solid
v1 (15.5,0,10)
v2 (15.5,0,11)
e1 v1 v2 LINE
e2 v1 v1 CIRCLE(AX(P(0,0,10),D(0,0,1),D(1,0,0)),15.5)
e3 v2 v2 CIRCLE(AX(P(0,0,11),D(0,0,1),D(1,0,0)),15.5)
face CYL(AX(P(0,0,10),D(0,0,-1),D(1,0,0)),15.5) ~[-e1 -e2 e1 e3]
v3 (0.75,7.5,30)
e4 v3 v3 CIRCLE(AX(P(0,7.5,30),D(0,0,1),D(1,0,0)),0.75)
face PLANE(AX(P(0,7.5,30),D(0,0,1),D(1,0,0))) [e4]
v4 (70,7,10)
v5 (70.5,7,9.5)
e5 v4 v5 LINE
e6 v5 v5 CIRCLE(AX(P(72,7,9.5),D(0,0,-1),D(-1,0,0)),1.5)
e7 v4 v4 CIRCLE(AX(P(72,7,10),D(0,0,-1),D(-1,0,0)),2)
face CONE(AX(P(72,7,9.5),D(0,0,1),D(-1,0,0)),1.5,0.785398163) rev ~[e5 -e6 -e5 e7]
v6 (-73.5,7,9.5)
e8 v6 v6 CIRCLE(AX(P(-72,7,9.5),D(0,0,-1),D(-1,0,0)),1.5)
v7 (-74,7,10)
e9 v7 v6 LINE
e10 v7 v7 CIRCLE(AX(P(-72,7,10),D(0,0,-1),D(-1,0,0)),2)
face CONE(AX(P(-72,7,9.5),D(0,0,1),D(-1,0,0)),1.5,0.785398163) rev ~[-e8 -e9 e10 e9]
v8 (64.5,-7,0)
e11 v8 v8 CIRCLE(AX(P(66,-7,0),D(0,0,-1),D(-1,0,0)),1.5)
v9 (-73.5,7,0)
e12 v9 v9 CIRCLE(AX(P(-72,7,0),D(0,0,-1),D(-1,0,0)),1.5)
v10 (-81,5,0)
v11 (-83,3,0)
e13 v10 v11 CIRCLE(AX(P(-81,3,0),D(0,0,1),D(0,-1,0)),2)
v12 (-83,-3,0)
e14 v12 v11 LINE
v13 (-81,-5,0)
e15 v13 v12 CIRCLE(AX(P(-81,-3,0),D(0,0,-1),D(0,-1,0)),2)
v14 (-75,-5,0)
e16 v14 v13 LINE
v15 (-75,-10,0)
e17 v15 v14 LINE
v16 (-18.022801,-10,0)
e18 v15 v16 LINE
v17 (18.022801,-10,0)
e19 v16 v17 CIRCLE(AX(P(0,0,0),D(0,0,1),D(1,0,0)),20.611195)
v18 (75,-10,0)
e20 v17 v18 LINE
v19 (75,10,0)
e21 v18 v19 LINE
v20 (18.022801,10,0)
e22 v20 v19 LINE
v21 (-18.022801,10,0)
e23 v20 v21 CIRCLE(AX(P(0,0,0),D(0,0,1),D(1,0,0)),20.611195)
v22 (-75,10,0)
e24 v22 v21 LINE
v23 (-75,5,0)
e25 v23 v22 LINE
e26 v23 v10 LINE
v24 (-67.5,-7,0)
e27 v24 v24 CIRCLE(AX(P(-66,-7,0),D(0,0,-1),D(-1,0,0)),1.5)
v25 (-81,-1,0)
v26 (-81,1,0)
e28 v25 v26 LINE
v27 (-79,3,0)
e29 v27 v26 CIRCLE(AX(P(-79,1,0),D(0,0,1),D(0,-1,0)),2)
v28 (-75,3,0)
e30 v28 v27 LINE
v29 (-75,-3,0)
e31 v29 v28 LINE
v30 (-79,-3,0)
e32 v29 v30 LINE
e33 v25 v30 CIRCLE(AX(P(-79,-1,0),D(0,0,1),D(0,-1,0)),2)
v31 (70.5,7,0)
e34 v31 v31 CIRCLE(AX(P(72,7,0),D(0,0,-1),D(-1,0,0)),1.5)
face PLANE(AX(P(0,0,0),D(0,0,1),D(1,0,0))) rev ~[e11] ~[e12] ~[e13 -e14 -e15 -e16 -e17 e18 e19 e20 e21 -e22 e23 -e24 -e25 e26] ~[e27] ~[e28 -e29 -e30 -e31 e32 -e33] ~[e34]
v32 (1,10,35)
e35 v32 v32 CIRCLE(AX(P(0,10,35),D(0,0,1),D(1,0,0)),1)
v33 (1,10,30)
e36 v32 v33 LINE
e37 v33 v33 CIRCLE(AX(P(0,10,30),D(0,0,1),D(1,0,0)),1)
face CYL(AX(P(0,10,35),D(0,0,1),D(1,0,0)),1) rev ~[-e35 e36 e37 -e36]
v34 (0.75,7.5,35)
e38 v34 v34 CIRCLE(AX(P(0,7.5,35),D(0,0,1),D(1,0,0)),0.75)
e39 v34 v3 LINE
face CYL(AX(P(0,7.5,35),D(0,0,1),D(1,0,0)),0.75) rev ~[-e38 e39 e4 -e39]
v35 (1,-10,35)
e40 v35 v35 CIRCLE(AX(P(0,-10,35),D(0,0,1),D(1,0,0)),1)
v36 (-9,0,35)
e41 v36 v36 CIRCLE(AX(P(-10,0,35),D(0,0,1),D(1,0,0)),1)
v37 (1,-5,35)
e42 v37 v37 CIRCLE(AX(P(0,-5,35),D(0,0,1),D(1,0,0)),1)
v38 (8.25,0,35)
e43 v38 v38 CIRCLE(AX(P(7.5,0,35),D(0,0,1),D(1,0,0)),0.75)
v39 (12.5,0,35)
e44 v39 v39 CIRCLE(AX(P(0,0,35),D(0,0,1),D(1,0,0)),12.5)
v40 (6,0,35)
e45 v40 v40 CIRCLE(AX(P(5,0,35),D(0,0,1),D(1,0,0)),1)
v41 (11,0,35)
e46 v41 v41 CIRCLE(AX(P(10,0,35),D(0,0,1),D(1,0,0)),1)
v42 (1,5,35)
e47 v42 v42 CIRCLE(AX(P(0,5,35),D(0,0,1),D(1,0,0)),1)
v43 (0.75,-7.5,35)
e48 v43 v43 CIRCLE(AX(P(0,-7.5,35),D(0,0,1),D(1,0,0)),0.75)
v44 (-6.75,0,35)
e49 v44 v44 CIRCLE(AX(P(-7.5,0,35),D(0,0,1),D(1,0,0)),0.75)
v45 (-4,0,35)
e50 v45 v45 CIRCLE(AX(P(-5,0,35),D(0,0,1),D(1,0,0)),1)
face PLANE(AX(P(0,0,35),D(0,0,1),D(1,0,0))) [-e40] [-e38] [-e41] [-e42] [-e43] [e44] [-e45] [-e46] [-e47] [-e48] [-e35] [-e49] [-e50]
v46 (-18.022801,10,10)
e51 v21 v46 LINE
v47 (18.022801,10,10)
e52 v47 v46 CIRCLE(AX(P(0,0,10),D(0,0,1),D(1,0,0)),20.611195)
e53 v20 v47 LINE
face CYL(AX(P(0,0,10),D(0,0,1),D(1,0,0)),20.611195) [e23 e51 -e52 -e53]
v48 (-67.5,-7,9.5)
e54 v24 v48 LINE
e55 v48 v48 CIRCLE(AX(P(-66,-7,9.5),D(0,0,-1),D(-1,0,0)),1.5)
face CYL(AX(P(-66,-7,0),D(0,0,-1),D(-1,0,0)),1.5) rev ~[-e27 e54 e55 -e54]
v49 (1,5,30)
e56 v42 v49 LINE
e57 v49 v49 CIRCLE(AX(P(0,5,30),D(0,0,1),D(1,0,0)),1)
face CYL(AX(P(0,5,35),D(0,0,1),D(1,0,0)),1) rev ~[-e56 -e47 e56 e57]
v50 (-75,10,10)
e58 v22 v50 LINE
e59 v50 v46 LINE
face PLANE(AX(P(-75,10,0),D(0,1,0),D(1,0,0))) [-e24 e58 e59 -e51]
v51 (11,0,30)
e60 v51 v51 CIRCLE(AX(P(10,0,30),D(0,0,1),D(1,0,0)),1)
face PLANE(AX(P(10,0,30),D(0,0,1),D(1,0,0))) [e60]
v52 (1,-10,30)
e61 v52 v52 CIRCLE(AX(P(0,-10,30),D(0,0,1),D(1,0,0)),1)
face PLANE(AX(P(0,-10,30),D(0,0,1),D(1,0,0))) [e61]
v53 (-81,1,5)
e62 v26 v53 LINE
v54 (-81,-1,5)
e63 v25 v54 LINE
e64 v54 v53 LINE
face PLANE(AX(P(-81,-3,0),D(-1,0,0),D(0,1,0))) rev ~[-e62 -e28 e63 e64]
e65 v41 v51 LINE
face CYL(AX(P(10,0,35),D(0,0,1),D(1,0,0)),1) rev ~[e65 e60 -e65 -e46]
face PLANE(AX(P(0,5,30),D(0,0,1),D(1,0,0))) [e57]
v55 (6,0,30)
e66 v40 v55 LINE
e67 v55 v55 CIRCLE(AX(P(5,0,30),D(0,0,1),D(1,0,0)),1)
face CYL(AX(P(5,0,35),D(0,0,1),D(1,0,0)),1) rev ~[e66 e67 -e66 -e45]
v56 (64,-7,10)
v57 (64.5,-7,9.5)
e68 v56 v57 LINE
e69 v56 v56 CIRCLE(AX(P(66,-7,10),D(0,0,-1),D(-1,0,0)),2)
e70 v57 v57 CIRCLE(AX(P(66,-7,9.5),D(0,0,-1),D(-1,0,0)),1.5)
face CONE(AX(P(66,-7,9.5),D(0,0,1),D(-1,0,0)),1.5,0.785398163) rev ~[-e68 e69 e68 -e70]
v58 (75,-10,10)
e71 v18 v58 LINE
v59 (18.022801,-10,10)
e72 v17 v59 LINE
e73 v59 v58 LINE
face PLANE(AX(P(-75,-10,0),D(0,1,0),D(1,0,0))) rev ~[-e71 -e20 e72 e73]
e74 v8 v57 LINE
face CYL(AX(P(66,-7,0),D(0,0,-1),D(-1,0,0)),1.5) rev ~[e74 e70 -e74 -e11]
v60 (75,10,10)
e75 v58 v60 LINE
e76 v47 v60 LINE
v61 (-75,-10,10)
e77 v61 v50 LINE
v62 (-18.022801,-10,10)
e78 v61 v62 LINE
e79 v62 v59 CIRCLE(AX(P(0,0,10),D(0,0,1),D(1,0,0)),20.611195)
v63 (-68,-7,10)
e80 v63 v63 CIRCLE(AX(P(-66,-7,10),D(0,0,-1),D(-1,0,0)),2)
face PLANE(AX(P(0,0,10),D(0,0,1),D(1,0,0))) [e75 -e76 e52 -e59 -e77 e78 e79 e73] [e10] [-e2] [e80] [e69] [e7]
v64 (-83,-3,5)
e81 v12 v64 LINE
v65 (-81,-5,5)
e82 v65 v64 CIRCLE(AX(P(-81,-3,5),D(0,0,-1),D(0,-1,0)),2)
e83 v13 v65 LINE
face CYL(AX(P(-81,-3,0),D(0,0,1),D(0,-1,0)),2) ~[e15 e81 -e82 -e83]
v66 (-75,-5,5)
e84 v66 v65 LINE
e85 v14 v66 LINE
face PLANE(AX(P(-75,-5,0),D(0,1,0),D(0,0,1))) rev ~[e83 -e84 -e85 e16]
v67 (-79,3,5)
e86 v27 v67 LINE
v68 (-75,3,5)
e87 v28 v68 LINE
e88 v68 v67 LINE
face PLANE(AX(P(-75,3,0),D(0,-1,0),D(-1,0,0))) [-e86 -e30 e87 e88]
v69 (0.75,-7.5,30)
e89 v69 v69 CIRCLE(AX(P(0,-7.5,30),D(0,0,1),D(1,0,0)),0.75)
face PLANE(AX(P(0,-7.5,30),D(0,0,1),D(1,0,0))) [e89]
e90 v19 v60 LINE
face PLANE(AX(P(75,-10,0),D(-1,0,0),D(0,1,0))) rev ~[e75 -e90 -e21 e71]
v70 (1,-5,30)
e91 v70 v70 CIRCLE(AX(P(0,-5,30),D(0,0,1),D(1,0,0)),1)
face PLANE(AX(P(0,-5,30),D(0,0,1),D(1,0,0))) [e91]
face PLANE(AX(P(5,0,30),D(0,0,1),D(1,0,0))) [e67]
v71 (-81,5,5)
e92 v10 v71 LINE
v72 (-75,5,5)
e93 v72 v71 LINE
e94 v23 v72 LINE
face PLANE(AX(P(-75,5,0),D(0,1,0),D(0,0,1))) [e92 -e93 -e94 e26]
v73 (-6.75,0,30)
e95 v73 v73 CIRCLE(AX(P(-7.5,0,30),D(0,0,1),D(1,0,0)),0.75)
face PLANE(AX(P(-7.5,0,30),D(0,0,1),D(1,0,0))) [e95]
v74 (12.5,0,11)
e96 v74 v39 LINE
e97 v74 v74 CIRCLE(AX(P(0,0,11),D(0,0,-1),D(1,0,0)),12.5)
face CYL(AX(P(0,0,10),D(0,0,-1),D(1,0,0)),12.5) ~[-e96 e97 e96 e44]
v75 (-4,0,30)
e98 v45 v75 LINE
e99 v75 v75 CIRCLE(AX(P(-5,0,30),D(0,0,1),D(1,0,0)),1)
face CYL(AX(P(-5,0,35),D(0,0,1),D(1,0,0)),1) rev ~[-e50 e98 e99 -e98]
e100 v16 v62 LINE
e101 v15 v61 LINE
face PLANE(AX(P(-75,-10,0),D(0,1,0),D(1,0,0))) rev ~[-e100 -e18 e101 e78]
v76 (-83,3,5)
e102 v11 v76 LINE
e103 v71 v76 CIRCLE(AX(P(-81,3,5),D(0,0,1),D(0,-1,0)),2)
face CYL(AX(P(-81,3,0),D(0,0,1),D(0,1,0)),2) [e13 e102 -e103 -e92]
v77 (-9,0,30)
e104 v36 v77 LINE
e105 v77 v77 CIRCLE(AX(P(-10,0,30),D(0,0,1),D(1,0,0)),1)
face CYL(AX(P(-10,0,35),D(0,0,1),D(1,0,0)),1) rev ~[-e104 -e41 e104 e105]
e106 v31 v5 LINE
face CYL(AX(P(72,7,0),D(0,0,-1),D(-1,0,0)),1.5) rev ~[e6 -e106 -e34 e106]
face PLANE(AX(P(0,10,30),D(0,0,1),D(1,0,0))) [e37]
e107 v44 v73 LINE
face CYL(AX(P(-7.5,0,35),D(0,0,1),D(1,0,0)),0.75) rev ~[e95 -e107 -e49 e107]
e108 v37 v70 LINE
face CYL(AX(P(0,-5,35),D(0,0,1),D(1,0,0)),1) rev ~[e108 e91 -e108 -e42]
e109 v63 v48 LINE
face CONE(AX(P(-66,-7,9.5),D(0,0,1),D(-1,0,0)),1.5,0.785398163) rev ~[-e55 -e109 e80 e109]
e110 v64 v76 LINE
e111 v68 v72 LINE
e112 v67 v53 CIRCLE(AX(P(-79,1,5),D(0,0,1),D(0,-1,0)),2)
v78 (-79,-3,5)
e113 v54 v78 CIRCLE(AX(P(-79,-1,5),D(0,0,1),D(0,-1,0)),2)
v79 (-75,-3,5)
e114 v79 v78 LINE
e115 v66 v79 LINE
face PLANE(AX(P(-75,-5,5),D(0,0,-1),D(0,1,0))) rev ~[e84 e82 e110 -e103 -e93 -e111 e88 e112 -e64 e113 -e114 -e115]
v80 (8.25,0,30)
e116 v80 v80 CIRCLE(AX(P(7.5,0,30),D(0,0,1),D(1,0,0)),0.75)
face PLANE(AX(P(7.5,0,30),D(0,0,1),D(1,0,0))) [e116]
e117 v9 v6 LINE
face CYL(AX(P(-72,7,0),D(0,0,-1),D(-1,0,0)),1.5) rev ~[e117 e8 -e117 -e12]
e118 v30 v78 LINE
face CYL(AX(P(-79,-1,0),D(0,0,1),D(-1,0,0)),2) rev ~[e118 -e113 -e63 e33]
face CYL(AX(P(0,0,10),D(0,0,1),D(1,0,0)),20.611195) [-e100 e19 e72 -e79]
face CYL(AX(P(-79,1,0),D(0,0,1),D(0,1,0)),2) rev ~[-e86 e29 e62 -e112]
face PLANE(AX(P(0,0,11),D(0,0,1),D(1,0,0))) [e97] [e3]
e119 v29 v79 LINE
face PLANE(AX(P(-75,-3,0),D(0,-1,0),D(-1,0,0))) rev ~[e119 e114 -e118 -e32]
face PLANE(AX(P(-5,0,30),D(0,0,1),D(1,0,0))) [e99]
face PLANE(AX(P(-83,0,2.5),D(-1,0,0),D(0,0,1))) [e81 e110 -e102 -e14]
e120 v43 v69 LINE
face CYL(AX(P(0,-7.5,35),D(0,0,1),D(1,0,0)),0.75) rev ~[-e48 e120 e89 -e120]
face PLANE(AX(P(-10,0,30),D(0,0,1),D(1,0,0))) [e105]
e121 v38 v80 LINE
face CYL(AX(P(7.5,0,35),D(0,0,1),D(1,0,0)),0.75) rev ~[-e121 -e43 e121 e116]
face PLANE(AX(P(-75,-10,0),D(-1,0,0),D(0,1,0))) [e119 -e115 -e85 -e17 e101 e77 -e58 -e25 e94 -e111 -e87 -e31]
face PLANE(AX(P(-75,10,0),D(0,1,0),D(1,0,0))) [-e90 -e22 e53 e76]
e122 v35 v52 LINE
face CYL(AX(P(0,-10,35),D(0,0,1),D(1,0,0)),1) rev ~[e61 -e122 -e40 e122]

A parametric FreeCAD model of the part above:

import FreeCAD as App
import Part
import Sketcher
Q = App.Units.Quantity


def edges_at(feature, points):
    """Names of the edges that pass closest to the given points."""
    edges = feature.Shape.Edges
    near = lambda p: min(range(len(edges)), key=lambda i: edges[i].distToShape(Part.Vertex(*p))[0])
    return sorted({f"Edge{near(p) + 1}" for p in points})


def add_polygon(sketch, points):
    """Adds a closed chain of lines whose ends are joined by coincident constraints."""
    first, n = sketch.GeometryCount, len(points)
    for a, b in zip(points, points[1:] + points[:1]):
        sketch.addGeometry(Part.LineSegment(App.Vector(*a, 0), App.Vector(*b, 0)), False)
    for i in range(n):
        sketch.addConstraint(Sketcher.Constraint("Coincident", first + i, 2, first + (i + 1) % n, 1))

doc = App.newDocument("Part")
body = doc.addObject("PartDesign::Body", "Body")

# Sketch on XY plane
sketch1 = body.newObject("Sketcher::SketchObject", "Sketch")
sketch1.AttachmentSupport = (doc.getObject("XY_Plane"), [""])
sketch1.MapMode = "FlatFace"
add_polygon(sketch1, [(-75, 10), (-75, -10), (75, -10), (75, 10)])  # lines 0-3
sketch1.addConstraint([
    Sketcher.Constraint("Vertical", 0),
    Sketcher.Constraint("Horizontal", 1),
    Sketcher.Constraint("Vertical", 2),
    Sketcher.Constraint("Horizontal", 3),
    Sketcher.Constraint("Symmetric", 0, 2, 2, 2, -1, 1),
    Sketcher.Constraint("DistanceX", 1, 1, 1, 2, Q("150 mm")),
    Sketcher.Constraint("DistanceY", 0, 2, 0, 1, Q("20 mm")),
])
pad1 = body.newObject("PartDesign::Pad", "Pad")
pad1.Profile = sketch1
pad1.Length = 10

# Sketch on XY plane
sketch2 = body.newObject("Sketcher::SketchObject", "Sketch001")
sketch2.AttachmentSupport = (doc.getObject("XY_Plane"), [""])
sketch2.MapMode = "FlatFace"
sketch2.AttachmentOffset = App.Placement(App.Vector(0, 0, 10), App.Rotation())
sketch2.addGeometry(Part.Circle(App.Vector(0, 0, 0), App.Vector(0, 0, 1), 21), False)
sketch2.addConstraint([
    Sketcher.Constraint("Coincident", 0, 3, -1, 1),
    Sketcher.Constraint("Diameter", 0, Q("41.22239 mm")),
])
pad2 = body.newObject("PartDesign::Pad", "Pad001")
pad2.Profile = sketch2
pad2.Length = 10
pad2.Reversed = True

# Sketch on XY plane
sketch3 = body.newObject("Sketcher::SketchObject", "Sketch002")
sketch3.AttachmentSupport = (doc.getObject("XY_Plane"), [""])
sketch3.MapMode = "FlatFace"
sketch3.AttachmentOffset = App.Placement(App.Vector(0, 0, 10), App.Rotation())
sketch3.addGeometry(Part.Circle(App.Vector(0, 0, 0), App.Vector(0, 0, 1), 12), False)
sketch3.addConstraint([
    Sketcher.Constraint("Coincident", 0, 3, -1, 1),
    Sketcher.Constraint("Diameter", 0, Q("25 mm")),
])
pad3 = body.newObject("PartDesign::Pad", "Pad002")
pad3.Profile = sketch3
pad3.Length = 25

# Sketch on XY plane
sketch4 = body.newObject("Sketcher::SketchObject", "Sketch003")
sketch4.AttachmentSupport = (doc.getObject("XY_Plane"), [""])
sketch4.MapMode = "FlatFace"
sketch4.AttachmentOffset = App.Placement(App.Vector(0, 0, 10), App.Rotation())
sketch4.addGeometry(Part.Circle(App.Vector(0, 0, 0), App.Vector(0, 0, 1), 16), False)
sketch4.addConstraint([
    Sketcher.Constraint("Coincident", 0, 3, -1, 1),
    Sketcher.Constraint("Diameter", 0, Q("31 mm")),
])
pad4 = body.newObject("PartDesign::Pad", "Pad003")
pad4.Profile = sketch4
pad4.Length = 1

# Sketch on XY plane
sketch5 = body.newObject("Sketcher::SketchObject", "Sketch004")
sketch5.AttachmentSupport = (doc.getObject("XY_Plane"), [""])
sketch5.MapMode = "FlatFace"
sketch5.addGeometry([
    Part.Circle(App.Vector(72, 7, 0), App.Vector(0, 0, 1), 1.5),
    Part.Circle(App.Vector(66, -7, 0), App.Vector(0, 0, 1), 1.5),
    Part.Circle(App.Vector(-66, -7, 0), App.Vector(0, 0, 1), 1.5),
    Part.Circle(App.Vector(-72, 7, 0), App.Vector(0, 0, 1), 1.5),
], False)
sketch5.addConstraint([
    Sketcher.Constraint("Equal", 0, 1),
    Sketcher.Constraint("Equal", 1, 2),
    Sketcher.Constraint("Equal", 2, 3),
    Sketcher.Constraint("Symmetric", 1, 3, 2, 3, -2),
    Sketcher.Constraint("Symmetric", 0, 3, 3, 3, -2),
    Sketcher.Constraint("Diameter", 0, Q("3 mm")),
    Sketcher.Constraint("DistanceX", -1, 1, 0, 3, Q("72 mm")),
    Sketcher.Constraint("DistanceY", -1, 1, 0, 3, Q("7 mm")),
    Sketcher.Constraint("DistanceX", -1, 1, 1, 3, Q("66 mm")),
    Sketcher.Constraint("DistanceY", 1, 3, -1, 1, Q("7 mm")),
])
pocket1 = body.newObject("PartDesign::Pocket", "Pocket")
pocket1.Profile = sketch5
pocket1.Length = 10
pocket1.Reversed = True
doc.recompute()

chamfer = body.newObject("PartDesign::Chamfer", "Chamfer")
chamfer.Base = (pocket1, edges_at(pocket1, [
    (73.5, 7, 10),
    (67.5, -7, 10),
    (-64.5, -7, 10),
    (-70.5, 7, 10),
]))
chamfer.Size = 0.5

# Sketch on YZ plane
sketch6 = body.newObject("Sketcher::SketchObject", "Sketch005")
sketch6.AttachmentSupport = (doc.getObject("YZ_Plane"), [""])
sketch6.MapMode = "FlatFace"
sketch6.AttachmentOffset = App.Placement(App.Vector(0, 0, -75), App.Rotation())
add_polygon(sketch6, [(5, 0), (-5, 0), (-5, 5), (5, 5)])  # lines 0-3
sketch6.addConstraint([
    Sketcher.Constraint("Horizontal", 0),
    Sketcher.Constraint("Vertical", 1),
    Sketcher.Constraint("Horizontal", 2),
    Sketcher.Constraint("Vertical", 3),
    Sketcher.Constraint("Symmetric", 0, 2, 3, 2, -1, 1),
    Sketcher.Constraint("DistanceX", 0, 2, 0, 1, Q("10 mm")),
    Sketcher.Constraint("DistanceY", 1, 1, 1, 2, Q("5 mm")),
])
pad5 = body.newObject("PartDesign::Pad", "Pad004")
pad5.Profile = sketch6
pad5.Length = 8
pad5.Reversed = True

# Sketch on XY plane
sketch7 = body.newObject("Sketcher::SketchObject", "Sketch006")
sketch7.AttachmentSupport = (doc.getObject("XY_Plane"), [""])
sketch7.MapMode = "FlatFace"
add_polygon(sketch7, [(-75, 3), (-75, -3), (-81, -3), (-81, 3)])  # lines 0-3
sketch7.addConstraint([
    Sketcher.Constraint("Vertical", 0),
    Sketcher.Constraint("Horizontal", 1),
    Sketcher.Constraint("Vertical", 2),
    Sketcher.Constraint("Horizontal", 3),
    Sketcher.Constraint("Equal", 3, 0),
    Sketcher.Constraint("DistanceX", 1, 2, 1, 1, Q("6 mm")),
    Sketcher.Constraint("DistanceX", 0, 2, -1, 1, Q("75 mm")),
    Sketcher.Constraint("DistanceY", 0, 2, -1, 1, Q("3 mm")),
])
pocket2 = body.newObject("PartDesign::Pocket", "Pocket001")
pocket2.Profile = sketch7
pocket2.Length = 8
pocket2.Reversed = True
doc.recompute()

fillet = body.newObject("PartDesign::Fillet", "Fillet")
fillet.Base = (pocket2, edges_at(pocket2, [
    (-81, 3, 2.5),
    (-81, -3, 2.5),
    (-83, -5, 2.5),
    (-83, 5, 2.5),
]))
fillet.Radius = 2

# Sketch on XY plane
sketch8 = body.newObject("Sketcher::SketchObject", "Sketch007")
sketch8.AttachmentSupport = (doc.getObject("XY_Plane"), [""])
sketch8.MapMode = "FlatFace"
sketch8.AttachmentOffset = App.Placement(App.Vector(0, 0, 35), App.Rotation())
sketch8.addGeometry([
    Part.Circle(App.Vector(-5, 0, 0), App.Vector(0, 0, 1), 1),  # 0
    Part.Circle(App.Vector(-10, 0, 0), App.Vector(0, 0, 1), 1),  # 1
    Part.Circle(App.Vector(0, 10, 0), App.Vector(0, 0, 1), 1),  # 2
    Part.Circle(App.Vector(0, 5, 0), App.Vector(0, 0, 1), 1),  # 3
    Part.Circle(App.Vector(10, 0, 0), App.Vector(0, 0, 1), 1),  # 4
    Part.Circle(App.Vector(5, 0, 0), App.Vector(0, 0, 1), 1),  # 5
    Part.Circle(App.Vector(0, -10, 0), App.Vector(0, 0, 1), 1),  # 6
    Part.Circle(App.Vector(0, -5, 0), App.Vector(0, 0, 1), 1),  # 7
    Part.Circle(App.Vector(-7.5, 0, 0), App.Vector(0, 0, 1), 0.8),  # 8
    Part.Circle(App.Vector(0, 7.5, 0), App.Vector(0, 0, 1), 0.8),  # 9
    Part.Circle(App.Vector(7.5, 0, 0), App.Vector(0, 0, 1), 0.8),  # 10
    Part.Circle(App.Vector(0, -7.5, 0), App.Vector(0, 0, 1), 0.8),  # 11
], False)
sketch8.addConstraint([
    Sketcher.Constraint("Equal", 0, 1),
    Sketcher.Constraint("Equal", 1, 2),
    Sketcher.Constraint("Equal", 2, 3),
    Sketcher.Constraint("Equal", 3, 4),
    Sketcher.Constraint("Equal", 4, 5),
    Sketcher.Constraint("Equal", 5, 6),
    Sketcher.Constraint("Equal", 6, 7),
    Sketcher.Constraint("Equal", 8, 9),
    Sketcher.Constraint("Equal", 9, 10),
    Sketcher.Constraint("Equal", 10, 11),
    Sketcher.Constraint("Symmetric", 1, 3, 4, 3, -1, 1),
    Sketcher.Constraint("Symmetric", 0, 3, 5, 3, -1, 1),
    Sketcher.Constraint("Symmetric", 2, 3, 6, 3, -1, 1),
    Sketcher.Constraint("Symmetric", 3, 3, 7, 3, -1, 1),
    Sketcher.Constraint("Symmetric", 8, 3, 10, 3, -1, 1),
    Sketcher.Constraint("Symmetric", 9, 3, 11, 3, -1, 1),
    Sketcher.Constraint("PointOnObject", 0, 3, -1),
    Sketcher.Constraint("PointOnObject", 1, 3, -1),
    Sketcher.Constraint("PointOnObject", 2, 3, -2),
    Sketcher.Constraint("PointOnObject", 3, 3, -2),
    Sketcher.Constraint("PointOnObject", 8, 3, -1),
    Sketcher.Constraint("PointOnObject", 9, 3, -2),
    Sketcher.Constraint("Diameter", 0, Q("2 mm")),
    Sketcher.Constraint("Diameter", 8, Q("1.5 mm")),
    Sketcher.Constraint("DistanceX", 0, 3, -1, 1, Q("5 mm")),
    Sketcher.Constraint("DistanceX", 1, 3, -1, 1, Q("10 mm")),
    Sketcher.Constraint("DistanceY", -1, 1, 2, 3, Q("10 mm")),
    Sketcher.Constraint("DistanceY", -1, 1, 3, 3, Q("5 mm")),
    Sketcher.Constraint("DistanceX", 8, 3, -1, 1, Q("7.5 mm")),
    Sketcher.Constraint("DistanceY", -1, 1, 9, 3, Q("7.5 mm")),
])
pocket3 = body.newObject("PartDesign::Pocket", "Pocket002")
pocket3.Profile = sketch8
pocket3.Length = 5

doc.recompute()
